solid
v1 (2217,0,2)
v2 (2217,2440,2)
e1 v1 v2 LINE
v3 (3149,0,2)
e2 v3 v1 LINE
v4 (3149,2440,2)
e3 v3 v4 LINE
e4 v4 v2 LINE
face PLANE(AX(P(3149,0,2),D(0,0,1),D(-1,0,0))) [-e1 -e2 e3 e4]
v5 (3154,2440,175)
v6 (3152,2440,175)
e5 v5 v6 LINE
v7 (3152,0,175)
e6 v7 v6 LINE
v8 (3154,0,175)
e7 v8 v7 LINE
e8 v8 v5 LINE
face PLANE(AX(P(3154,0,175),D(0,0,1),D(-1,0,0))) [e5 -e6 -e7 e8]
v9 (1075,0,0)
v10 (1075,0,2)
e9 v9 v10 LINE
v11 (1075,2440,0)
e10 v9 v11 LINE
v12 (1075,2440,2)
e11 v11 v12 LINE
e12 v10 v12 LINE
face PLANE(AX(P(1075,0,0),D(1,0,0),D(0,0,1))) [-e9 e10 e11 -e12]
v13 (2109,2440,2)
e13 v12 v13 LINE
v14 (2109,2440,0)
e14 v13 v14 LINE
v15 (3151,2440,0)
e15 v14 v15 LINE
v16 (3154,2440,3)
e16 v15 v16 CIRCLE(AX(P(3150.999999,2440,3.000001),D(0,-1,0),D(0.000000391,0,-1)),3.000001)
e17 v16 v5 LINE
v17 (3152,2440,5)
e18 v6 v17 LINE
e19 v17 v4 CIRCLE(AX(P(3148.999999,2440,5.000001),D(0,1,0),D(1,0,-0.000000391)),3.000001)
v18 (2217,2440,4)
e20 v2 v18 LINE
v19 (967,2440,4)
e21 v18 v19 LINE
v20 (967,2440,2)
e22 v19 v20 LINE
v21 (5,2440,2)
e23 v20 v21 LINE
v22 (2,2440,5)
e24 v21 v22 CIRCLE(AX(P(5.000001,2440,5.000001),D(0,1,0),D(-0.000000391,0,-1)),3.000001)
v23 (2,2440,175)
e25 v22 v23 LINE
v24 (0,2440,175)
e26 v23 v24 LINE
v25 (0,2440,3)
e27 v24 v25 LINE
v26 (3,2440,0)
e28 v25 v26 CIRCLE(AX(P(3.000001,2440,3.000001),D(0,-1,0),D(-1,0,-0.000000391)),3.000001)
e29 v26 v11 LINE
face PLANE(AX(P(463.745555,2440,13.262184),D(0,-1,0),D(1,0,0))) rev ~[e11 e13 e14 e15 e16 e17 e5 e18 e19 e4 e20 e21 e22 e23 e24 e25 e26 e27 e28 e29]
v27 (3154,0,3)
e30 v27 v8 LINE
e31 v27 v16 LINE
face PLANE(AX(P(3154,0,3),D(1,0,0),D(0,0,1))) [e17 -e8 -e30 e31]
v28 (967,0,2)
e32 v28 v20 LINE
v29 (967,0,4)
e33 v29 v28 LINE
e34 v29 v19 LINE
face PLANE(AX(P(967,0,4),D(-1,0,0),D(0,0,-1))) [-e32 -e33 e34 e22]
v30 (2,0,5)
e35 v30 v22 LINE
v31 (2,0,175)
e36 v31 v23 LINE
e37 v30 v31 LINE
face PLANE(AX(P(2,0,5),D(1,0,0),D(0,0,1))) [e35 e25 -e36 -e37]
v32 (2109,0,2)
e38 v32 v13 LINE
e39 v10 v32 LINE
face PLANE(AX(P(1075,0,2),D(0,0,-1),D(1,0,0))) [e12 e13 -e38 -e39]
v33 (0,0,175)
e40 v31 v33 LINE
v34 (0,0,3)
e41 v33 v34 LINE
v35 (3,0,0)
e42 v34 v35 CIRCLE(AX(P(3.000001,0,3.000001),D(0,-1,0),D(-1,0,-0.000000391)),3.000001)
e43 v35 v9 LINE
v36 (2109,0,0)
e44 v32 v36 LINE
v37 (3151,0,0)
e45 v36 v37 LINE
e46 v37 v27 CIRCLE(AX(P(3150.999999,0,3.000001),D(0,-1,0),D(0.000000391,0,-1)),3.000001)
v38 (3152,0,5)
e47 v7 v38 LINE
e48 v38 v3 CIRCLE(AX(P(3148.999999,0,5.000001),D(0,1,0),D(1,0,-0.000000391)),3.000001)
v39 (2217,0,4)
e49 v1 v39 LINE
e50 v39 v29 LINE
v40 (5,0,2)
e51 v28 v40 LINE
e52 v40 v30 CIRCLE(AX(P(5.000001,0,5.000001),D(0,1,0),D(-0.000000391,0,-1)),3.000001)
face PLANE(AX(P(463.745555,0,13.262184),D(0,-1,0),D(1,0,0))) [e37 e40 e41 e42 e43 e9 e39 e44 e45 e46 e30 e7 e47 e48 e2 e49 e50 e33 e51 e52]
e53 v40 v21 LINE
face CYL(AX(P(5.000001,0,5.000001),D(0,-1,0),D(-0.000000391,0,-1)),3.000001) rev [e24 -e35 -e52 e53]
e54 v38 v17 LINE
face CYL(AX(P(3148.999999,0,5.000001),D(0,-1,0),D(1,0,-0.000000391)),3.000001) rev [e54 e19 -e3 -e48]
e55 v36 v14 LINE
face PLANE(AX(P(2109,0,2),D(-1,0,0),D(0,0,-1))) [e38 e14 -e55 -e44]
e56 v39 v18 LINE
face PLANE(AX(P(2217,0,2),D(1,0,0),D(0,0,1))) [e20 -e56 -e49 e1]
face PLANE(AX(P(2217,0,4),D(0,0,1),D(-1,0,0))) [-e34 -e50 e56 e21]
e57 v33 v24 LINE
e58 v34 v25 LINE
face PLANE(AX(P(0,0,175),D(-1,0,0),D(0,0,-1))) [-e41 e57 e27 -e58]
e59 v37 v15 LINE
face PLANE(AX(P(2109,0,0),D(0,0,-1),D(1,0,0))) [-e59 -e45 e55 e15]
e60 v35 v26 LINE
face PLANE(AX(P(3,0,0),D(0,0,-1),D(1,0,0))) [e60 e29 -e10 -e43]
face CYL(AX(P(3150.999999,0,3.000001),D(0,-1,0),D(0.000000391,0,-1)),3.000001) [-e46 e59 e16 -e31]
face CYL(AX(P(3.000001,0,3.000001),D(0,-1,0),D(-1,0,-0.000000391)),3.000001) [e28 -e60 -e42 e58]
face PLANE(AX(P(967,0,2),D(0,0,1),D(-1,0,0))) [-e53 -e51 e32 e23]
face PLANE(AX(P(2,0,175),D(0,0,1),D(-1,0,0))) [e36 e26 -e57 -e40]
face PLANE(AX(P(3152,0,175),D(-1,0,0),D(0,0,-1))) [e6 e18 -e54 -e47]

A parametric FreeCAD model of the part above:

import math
import FreeCAD as App
import Part
import Sketcher

V = App.Vector

doc = App.newDocument("Part")
params = doc.addObject("Spreadsheet::Sheet", "Params")
for row, (alias, value) in enumerate([
    ("sketch1_radius", "3.000001 mm"),
    ("sketch1_width", "1072 mm"),
    ("sketch1_width2", "1034 mm"),
    ("sketch1_width3", "1042 mm"),
    ("sketch1_width4", "2 mm"),
    ("pad1_length", "2440 mm"),
], start=1):
    params.set(f"A{row}", alias)
    params.set(f"B{row}", "=" + value)
    params.setAlias(f"B{row}", alias)

body = doc.addObject("PartDesign::Body", "Body")

# Sketch on XZ plane
sketch1 = doc.addObject("Sketcher::SketchObject", "Sketch")
body.addObject(sketch1)
sketch1.AttachmentSupport = (doc.XZ_Plane, [""])
sketch1.MapMode = "FlatFace"
sketch1.addGeometry(Part.ArcOfCircle(Part.Circle(V(3.000001, 3.000001, 0), V(0, 0, 1), 3.000001), math.radians(-179.999978), math.radians(-90.000022)), False)
sketch1.addGeometry(Part.LineSegment(V(3, 0, 0), V(1075, 0, 0)), False)
sketch1.addGeometry(Part.LineSegment(V(1075, 0, 0), V(1075, 2, 0)), False)
sketch1.addGeometry(Part.LineSegment(V(1075, 2, 0), V(2109, 2, 0)), False)
sketch1.addGeometry(Part.LineSegment(V(2109, 2, 0), V(2109, 0, 0)), False)
sketch1.addGeometry(Part.LineSegment(V(2109, 0, 0), V(3151, 0, 0)), False)
sketch1.addGeometry(Part.ArcOfCircle(Part.Circle(V(3150.999999, 3.000001, 0), V(0, 0, 1), 3.000001), math.radians(-89.999978), math.radians(-0.000022)), False)
sketch1.addGeometry(Part.LineSegment(V(3154, 3, 0), V(3154, 175, 0)), False)
sketch1.addGeometry(Part.LineSegment(V(3154, 175, 0), V(3152, 175, 0)), False)
sketch1.addGeometry(Part.LineSegment(V(3152, 175, 0), V(3152, 5, 0)), False)
sketch1.addGeometry(Part.ArcOfCircle(Part.Circle(V(3148.999999, 5.000001, 0), V(0, 0, 1), 3.000001), math.radians(-89.999978), math.radians(-0.000022)), False)
sketch1.addGeometry(Part.LineSegment(V(3149, 2, 0), V(2217, 2, 0)), False)
sketch1.addGeometry(Part.LineSegment(V(2217, 2, 0), V(2217, 4, 0)), False)
sketch1.addGeometry(Part.LineSegment(V(2217, 4, 0), V(967, 4, 0)), False)
sketch1.addGeometry(Part.LineSegment(V(967, 4, 0), V(967, 2, 0)), False)
sketch1.addGeometry(Part.LineSegment(V(967, 2, 0), V(5, 2, 0)), False)
sketch1.addGeometry(Part.ArcOfCircle(Part.Circle(V(5.000001, 5.000001, 0), V(0, 0, 1), 3.000001), math.radians(-179.999978), math.radians(-90.000022)), False)
sketch1.addGeometry(Part.LineSegment(V(2, 5, 0), V(2, 175, 0)), False)
sketch1.addGeometry(Part.LineSegment(V(2, 175, 0), V(0, 175, 0)), False)
sketch1.addGeometry(Part.LineSegment(V(0, 175, 0), V(0, 3, 0)), False)
sketch1.addConstraint(Sketcher.Constraint("Tangent", 0, 2, 1, 1))
sketch1.addConstraint(Sketcher.Constraint("Coincident", 1, 2, 2, 1))
sketch1.addConstraint(Sketcher.Constraint("Coincident", 2, 2, 3, 1))
sketch1.addConstraint(Sketcher.Constraint("Coincident", 3, 2, 4, 1))
sketch1.addConstraint(Sketcher.Constraint("Coincident", 4, 2, 5, 1))
sketch1.addConstraint(Sketcher.Constraint("Tangent", 5, 2, 6, 1))
sketch1.addConstraint(Sketcher.Constraint("Tangent", 6, 2, 7, 1))
sketch1.addConstraint(Sketcher.Constraint("Coincident", 7, 2, 8, 1))
sketch1.addConstraint(Sketcher.Constraint("Coincident", 8, 2, 9, 1))
sketch1.addConstraint(Sketcher.Constraint("Tangent", 9, 2, 10, 2))
sketch1.addConstraint(Sketcher.Constraint("Tangent", 10, 1, 11, 1))
sketch1.addConstraint(Sketcher.Constraint("Coincident", 11, 2, 12, 1))
sketch1.addConstraint(Sketcher.Constraint("Coincident", 12, 2, 13, 1))
sketch1.addConstraint(Sketcher.Constraint("Coincident", 13, 2, 14, 1))
sketch1.addConstraint(Sketcher.Constraint("Coincident", 14, 2, 15, 1))
sketch1.addConstraint(Sketcher.Constraint("Tangent", 15, 2, 16, 2))
sketch1.addConstraint(Sketcher.Constraint("Tangent", 16, 1, 17, 1))
sketch1.addConstraint(Sketcher.Constraint("Coincident", 17, 2, 18, 1))
sketch1.addConstraint(Sketcher.Constraint("Coincident", 18, 2, 19, 1))
sketch1.addConstraint(Sketcher.Constraint("Tangent", 19, 2, 0, 1))
sketch1.addConstraint(Sketcher.Constraint("Horizontal", 1))
sketch1.addConstraint(Sketcher.Constraint("Vertical", 2))
sketch1.addConstraint(Sketcher.Constraint("Horizontal", 3))
sketch1.addConstraint(Sketcher.Constraint("Vertical", 4))
sketch1.addConstraint(Sketcher.Constraint("Horizontal", 5))
sketch1.addConstraint(Sketcher.Constraint("Vertical", 7))
sketch1.addConstraint(Sketcher.Constraint("Horizontal", 8))
sketch1.addConstraint(Sketcher.Constraint("Vertical", 9))
sketch1.addConstraint(Sketcher.Constraint("Horizontal", 11))
sketch1.addConstraint(Sketcher.Constraint("Vertical", 12))
sketch1.addConstraint(Sketcher.Constraint("Horizontal", 13))
sketch1.addConstraint(Sketcher.Constraint("Vertical", 14))
sketch1.addConstraint(Sketcher.Constraint("Horizontal", 15))
sketch1.addConstraint(Sketcher.Constraint("Vertical", 17))
sketch1.addConstraint(Sketcher.Constraint("Horizontal", 18))
sketch1.addConstraint(Sketcher.Constraint("Vertical", 19))
sketch1.addConstraint(Sketcher.Constraint("Equal", 0, 6))
sketch1.addConstraint(Sketcher.Constraint("Equal", 6, 10))
sketch1.addConstraint(Sketcher.Constraint("Equal", 10, 16))
sketch1.addConstraint(Sketcher.Constraint("PointOnObject", 0, 2, -1))
sketch1.addConstraint(Sketcher.Constraint("PointOnObject", 4, 2, -1))
sketch1.addConstraint(Sketcher.Constraint("PointOnObject", 18, 2, -2))
sketch1.addConstraint(Sketcher.Constraint("Horizontal", 10, 3, 16, 3))
sketch1.addConstraint(Sketcher.Constraint("Horizontal", 3, 2, 10, 1))
sketch1.addConstraint(Sketcher.Constraint("Horizontal", 8, 2, 17, 2))
sketch1.addConstraint(Sketcher.Constraint("Equal", 8, 18))
sketch1.addConstraint(Sketcher.Constraint("Equal", 18, 2))
sketch1.addConstraint(Sketcher.Constraint("Equal", 4, 12))
sketch1.addConstraint(Sketcher.Constraint("Radius", 0, 3.000001))
sketch1.addConstraint(Sketcher.Constraint("DistanceX", 1, 1, 1, 2, 1072.0))
sketch1.addConstraint(Sketcher.Constraint("DistanceX", 3, 1, 3, 2, 1034.0))
sketch1.addConstraint(Sketcher.Constraint("DistanceX", 5, 1, 5, 2, 1042.0))
sketch1.addConstraint(Sketcher.Constraint("DistanceX", 8, 2, 8, 1, 2.0))
sketch1.addConstraint(Sketcher.Constraint("DistanceX", 11, 2, 11, 1, 932.0))
sketch1.addConstraint(Sketcher.Constraint("DistanceX", 13, 2, 13, 1, 1250.0))
sketch1.addConstraint(Sketcher.Constraint("DistanceY", 7, 1, 7, 2, 172.0))
sketch1.setExpression("Constraints[48]", "Params.sketch1_radius")
sketch1.setExpression("Constraints[49]", "Params.sketch1_width")
sketch1.setExpression("Constraints[50]", "Params.sketch1_width2")
sketch1.setExpression("Constraints[51]", "Params.sketch1_width3")
sketch1.setExpression("Constraints[52]", "Params.sketch1_width4")
pad1 = doc.addObject("PartDesign::Pad", "Pad")
body.addObject(pad1)
pad1.Profile = sketch1
pad1.setExpression("Length", "Params.pad1_length")
pad1.Reversed = True

doc.recompute()
